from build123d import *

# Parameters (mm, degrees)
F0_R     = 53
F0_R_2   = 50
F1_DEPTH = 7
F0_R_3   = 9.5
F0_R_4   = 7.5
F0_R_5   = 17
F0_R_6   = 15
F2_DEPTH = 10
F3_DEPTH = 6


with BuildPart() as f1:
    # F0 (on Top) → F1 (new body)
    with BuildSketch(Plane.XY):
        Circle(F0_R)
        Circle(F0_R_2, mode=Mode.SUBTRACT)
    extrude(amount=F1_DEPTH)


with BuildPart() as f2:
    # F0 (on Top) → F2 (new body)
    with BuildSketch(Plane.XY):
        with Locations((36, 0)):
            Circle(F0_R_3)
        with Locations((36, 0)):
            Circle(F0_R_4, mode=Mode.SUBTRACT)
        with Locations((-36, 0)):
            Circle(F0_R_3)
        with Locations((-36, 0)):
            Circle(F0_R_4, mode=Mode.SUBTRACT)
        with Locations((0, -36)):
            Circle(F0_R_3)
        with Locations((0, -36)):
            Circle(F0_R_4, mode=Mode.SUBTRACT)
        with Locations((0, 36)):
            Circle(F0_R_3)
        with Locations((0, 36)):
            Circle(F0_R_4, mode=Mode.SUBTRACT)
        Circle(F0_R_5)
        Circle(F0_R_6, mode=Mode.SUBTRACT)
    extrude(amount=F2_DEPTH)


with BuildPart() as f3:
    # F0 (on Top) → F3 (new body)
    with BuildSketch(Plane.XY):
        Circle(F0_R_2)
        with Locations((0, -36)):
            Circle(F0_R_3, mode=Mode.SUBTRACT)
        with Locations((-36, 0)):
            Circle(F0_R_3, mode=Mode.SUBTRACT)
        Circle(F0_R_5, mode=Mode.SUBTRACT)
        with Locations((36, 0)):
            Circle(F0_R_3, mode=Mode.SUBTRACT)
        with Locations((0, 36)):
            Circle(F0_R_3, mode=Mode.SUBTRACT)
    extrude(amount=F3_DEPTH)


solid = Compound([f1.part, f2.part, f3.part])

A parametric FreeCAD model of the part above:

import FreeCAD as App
import Part
import Sketcher
from FreeCAD import Vector
Q = App.Units.Quantity

doc = App.newDocument("Part")
body = doc.addObject("PartDesign::Body", "Body")

# Sketch on XY plane
sketch1 = body.newObject("Sketcher::SketchObject", "Sketch")
sketch1.AttachmentSupport = (doc.getObject("XY_Plane"), [""])
sketch1.MapMode = "FlatFace"
sketch1.addGeometry([
    Part.Circle(Vector(0, 0, 0), Vector(0, 0, 1), 53),
    Part.Circle(Vector(0, 0, 0), Vector(0, 0, 1), 50),
], False)
sketch1.addConstraint([
    Sketcher.Constraint("Coincident", 0, 3, -1, 1),
    Sketcher.Constraint("Coincident", 1, 3, -1, 1),
    Sketcher.Constraint("Diameter", 0, Q("106 mm")),
    Sketcher.Constraint("Diameter", 1, Q("100 mm")),
])
pad1 = body.newObject("PartDesign::Pad", "Pad")
pad1.Profile = sketch1
pad1.Length = 7
body2 = doc.addObject("PartDesign::Body", "Body001")
body2.AllowCompound = True

# Sketch on XY plane
sketch2 = body2.newObject("Sketcher::SketchObject", "Sketch001")
sketch2.AttachmentSupport = (doc.getObject("XY_Plane001"), [""])
sketch2.MapMode = "FlatFace"
sketch2.addGeometry([
    Part.Circle(Vector(36, 0, 0), Vector(0, 0, 1), 9.5),  # 0
    Part.Circle(Vector(36, 0, 0), Vector(0, 0, 1), 7.5),  # 1
    Part.Circle(Vector(-36, 0, 0), Vector(0, 0, 1), 9.5),  # 2
    Part.Circle(Vector(-36, 0, 0), Vector(0, 0, 1), 7.5),  # 3
    Part.Circle(Vector(0, -36, 0), Vector(0, 0, 1), 9.5),  # 4
    Part.Circle(Vector(0, -36, 0), Vector(0, 0, 1), 7.5),  # 5
    Part.Circle(Vector(0, 36, 0), Vector(0, 0, 1), 9.5),  # 6
    Part.Circle(Vector(0, 36, 0), Vector(0, 0, 1), 7.5),  # 7
    Part.Circle(Vector(0, 0, 0), Vector(0, 0, 1), 17),  # 8
    Part.Circle(Vector(0, 0, 0), Vector(0, 0, 1), 15),  # 9
], False)
sketch2.addConstraint([
    Sketcher.Constraint("Coincident", 8, 3, -1, 1),
    Sketcher.Constraint("Coincident", 9, 3, -1, 1),
    Sketcher.Constraint("Coincident", 1, 3, 0, 3),
    Sketcher.Constraint("Coincident", 3, 3, 2, 3),
    Sketcher.Constraint("Coincident", 5, 3, 4, 3),
    Sketcher.Constraint("Coincident", 7, 3, 6, 3),
    Sketcher.Constraint("Equal", 0, 2),
    Sketcher.Constraint("Equal", 1, 3),
    Sketcher.Constraint("Equal", 2, 4),
    Sketcher.Constraint("Equal", 3, 5),
    Sketcher.Constraint("Equal", 4, 6),
    Sketcher.Constraint("Equal", 5, 7),
    Sketcher.Constraint("Symmetric", 0, 3, 2, 3, -1, 1),
    Sketcher.Constraint("Symmetric", 4, 3, 6, 3, -1, 1),
    Sketcher.Constraint("PointOnObject", 0, 3, -1),
    Sketcher.Constraint("PointOnObject", 4, 3, -2),
    Sketcher.Constraint("Diameter", 0, Q("19 mm")),
    Sketcher.Constraint("Diameter", 1, Q("15 mm")),
    Sketcher.Constraint("Diameter", 8, Q("34 mm")),
    Sketcher.Constraint("Diameter", 9, Q("30 mm")),
    Sketcher.Constraint("DistanceX", -1, 1, 0, 3, Q("36 mm")),
    Sketcher.Constraint("DistanceY", 4, 3, -1, 1, Q("36 mm")),
])
pad2 = body2.newObject("PartDesign::Pad", "Pad001")
pad2.Profile = sketch2
pad2.Length = 10
body3 = doc.addObject("PartDesign::Body", "Body002")

# Sketch on XY plane
sketch3 = body3.newObject("Sketcher::SketchObject", "Sketch002")
sketch3.AttachmentSupport = (doc.getObject("XY_Plane002"), [""])
sketch3.MapMode = "FlatFace"
sketch3.addGeometry([
    Part.Circle(Vector(0, 0, 0), Vector(0, 0, 1), 50),  # 0
    Part.Circle(Vector(0, -36, 0), Vector(0, 0, 1), 9.5),  # 1
    Part.Circle(Vector(-36, 0, 0), Vector(0, 0, 1), 9.5),  # 2
    Part.Circle(Vector(0, 0, 0), Vector(0, 0, 1), 17),  # 3
    Part.Circle(Vector(36, 0, 0), Vector(0, 0, 1), 9.5),  # 4
    Part.Circle(Vector(0, 36, 0), Vector(0, 0, 1), 9.5),  # 5
], False)
sketch3.addConstraint([
    Sketcher.Constraint("Coincident", 0, 3, -1, 1),
    Sketcher.Constraint("Coincident", 3, 3, -1, 1),
    Sketcher.Constraint("Equal", 1, 2),
    Sketcher.Constraint("Equal", 2, 4),
    Sketcher.Constraint("Equal", 4, 5),
    Sketcher.Constraint("Symmetric", 2, 3, 4, 3, -1, 1),
    Sketcher.Constraint("Symmetric", 1, 3, 5, 3, -1, 1),
    Sketcher.Constraint("PointOnObject", 1, 3, -2),
    Sketcher.Constraint("PointOnObject", 2, 3, -1),
    Sketcher.Constraint("Diameter", 0, Q("100 mm")),
    Sketcher.Constraint("Diameter", 1, Q("19 mm")),
    Sketcher.Constraint("Diameter", 3, Q("34 mm")),
    Sketcher.Constraint("DistanceY", 1, 3, -1, 1, Q("36 mm")),
    Sketcher.Constraint("DistanceX", 2, 3, -1, 1, Q("36 mm")),
])
pad3 = body3.newObject("PartDesign::Pad", "Pad002")
pad3.Profile = sketch3
pad3.Length = 6

doc.recompute()
